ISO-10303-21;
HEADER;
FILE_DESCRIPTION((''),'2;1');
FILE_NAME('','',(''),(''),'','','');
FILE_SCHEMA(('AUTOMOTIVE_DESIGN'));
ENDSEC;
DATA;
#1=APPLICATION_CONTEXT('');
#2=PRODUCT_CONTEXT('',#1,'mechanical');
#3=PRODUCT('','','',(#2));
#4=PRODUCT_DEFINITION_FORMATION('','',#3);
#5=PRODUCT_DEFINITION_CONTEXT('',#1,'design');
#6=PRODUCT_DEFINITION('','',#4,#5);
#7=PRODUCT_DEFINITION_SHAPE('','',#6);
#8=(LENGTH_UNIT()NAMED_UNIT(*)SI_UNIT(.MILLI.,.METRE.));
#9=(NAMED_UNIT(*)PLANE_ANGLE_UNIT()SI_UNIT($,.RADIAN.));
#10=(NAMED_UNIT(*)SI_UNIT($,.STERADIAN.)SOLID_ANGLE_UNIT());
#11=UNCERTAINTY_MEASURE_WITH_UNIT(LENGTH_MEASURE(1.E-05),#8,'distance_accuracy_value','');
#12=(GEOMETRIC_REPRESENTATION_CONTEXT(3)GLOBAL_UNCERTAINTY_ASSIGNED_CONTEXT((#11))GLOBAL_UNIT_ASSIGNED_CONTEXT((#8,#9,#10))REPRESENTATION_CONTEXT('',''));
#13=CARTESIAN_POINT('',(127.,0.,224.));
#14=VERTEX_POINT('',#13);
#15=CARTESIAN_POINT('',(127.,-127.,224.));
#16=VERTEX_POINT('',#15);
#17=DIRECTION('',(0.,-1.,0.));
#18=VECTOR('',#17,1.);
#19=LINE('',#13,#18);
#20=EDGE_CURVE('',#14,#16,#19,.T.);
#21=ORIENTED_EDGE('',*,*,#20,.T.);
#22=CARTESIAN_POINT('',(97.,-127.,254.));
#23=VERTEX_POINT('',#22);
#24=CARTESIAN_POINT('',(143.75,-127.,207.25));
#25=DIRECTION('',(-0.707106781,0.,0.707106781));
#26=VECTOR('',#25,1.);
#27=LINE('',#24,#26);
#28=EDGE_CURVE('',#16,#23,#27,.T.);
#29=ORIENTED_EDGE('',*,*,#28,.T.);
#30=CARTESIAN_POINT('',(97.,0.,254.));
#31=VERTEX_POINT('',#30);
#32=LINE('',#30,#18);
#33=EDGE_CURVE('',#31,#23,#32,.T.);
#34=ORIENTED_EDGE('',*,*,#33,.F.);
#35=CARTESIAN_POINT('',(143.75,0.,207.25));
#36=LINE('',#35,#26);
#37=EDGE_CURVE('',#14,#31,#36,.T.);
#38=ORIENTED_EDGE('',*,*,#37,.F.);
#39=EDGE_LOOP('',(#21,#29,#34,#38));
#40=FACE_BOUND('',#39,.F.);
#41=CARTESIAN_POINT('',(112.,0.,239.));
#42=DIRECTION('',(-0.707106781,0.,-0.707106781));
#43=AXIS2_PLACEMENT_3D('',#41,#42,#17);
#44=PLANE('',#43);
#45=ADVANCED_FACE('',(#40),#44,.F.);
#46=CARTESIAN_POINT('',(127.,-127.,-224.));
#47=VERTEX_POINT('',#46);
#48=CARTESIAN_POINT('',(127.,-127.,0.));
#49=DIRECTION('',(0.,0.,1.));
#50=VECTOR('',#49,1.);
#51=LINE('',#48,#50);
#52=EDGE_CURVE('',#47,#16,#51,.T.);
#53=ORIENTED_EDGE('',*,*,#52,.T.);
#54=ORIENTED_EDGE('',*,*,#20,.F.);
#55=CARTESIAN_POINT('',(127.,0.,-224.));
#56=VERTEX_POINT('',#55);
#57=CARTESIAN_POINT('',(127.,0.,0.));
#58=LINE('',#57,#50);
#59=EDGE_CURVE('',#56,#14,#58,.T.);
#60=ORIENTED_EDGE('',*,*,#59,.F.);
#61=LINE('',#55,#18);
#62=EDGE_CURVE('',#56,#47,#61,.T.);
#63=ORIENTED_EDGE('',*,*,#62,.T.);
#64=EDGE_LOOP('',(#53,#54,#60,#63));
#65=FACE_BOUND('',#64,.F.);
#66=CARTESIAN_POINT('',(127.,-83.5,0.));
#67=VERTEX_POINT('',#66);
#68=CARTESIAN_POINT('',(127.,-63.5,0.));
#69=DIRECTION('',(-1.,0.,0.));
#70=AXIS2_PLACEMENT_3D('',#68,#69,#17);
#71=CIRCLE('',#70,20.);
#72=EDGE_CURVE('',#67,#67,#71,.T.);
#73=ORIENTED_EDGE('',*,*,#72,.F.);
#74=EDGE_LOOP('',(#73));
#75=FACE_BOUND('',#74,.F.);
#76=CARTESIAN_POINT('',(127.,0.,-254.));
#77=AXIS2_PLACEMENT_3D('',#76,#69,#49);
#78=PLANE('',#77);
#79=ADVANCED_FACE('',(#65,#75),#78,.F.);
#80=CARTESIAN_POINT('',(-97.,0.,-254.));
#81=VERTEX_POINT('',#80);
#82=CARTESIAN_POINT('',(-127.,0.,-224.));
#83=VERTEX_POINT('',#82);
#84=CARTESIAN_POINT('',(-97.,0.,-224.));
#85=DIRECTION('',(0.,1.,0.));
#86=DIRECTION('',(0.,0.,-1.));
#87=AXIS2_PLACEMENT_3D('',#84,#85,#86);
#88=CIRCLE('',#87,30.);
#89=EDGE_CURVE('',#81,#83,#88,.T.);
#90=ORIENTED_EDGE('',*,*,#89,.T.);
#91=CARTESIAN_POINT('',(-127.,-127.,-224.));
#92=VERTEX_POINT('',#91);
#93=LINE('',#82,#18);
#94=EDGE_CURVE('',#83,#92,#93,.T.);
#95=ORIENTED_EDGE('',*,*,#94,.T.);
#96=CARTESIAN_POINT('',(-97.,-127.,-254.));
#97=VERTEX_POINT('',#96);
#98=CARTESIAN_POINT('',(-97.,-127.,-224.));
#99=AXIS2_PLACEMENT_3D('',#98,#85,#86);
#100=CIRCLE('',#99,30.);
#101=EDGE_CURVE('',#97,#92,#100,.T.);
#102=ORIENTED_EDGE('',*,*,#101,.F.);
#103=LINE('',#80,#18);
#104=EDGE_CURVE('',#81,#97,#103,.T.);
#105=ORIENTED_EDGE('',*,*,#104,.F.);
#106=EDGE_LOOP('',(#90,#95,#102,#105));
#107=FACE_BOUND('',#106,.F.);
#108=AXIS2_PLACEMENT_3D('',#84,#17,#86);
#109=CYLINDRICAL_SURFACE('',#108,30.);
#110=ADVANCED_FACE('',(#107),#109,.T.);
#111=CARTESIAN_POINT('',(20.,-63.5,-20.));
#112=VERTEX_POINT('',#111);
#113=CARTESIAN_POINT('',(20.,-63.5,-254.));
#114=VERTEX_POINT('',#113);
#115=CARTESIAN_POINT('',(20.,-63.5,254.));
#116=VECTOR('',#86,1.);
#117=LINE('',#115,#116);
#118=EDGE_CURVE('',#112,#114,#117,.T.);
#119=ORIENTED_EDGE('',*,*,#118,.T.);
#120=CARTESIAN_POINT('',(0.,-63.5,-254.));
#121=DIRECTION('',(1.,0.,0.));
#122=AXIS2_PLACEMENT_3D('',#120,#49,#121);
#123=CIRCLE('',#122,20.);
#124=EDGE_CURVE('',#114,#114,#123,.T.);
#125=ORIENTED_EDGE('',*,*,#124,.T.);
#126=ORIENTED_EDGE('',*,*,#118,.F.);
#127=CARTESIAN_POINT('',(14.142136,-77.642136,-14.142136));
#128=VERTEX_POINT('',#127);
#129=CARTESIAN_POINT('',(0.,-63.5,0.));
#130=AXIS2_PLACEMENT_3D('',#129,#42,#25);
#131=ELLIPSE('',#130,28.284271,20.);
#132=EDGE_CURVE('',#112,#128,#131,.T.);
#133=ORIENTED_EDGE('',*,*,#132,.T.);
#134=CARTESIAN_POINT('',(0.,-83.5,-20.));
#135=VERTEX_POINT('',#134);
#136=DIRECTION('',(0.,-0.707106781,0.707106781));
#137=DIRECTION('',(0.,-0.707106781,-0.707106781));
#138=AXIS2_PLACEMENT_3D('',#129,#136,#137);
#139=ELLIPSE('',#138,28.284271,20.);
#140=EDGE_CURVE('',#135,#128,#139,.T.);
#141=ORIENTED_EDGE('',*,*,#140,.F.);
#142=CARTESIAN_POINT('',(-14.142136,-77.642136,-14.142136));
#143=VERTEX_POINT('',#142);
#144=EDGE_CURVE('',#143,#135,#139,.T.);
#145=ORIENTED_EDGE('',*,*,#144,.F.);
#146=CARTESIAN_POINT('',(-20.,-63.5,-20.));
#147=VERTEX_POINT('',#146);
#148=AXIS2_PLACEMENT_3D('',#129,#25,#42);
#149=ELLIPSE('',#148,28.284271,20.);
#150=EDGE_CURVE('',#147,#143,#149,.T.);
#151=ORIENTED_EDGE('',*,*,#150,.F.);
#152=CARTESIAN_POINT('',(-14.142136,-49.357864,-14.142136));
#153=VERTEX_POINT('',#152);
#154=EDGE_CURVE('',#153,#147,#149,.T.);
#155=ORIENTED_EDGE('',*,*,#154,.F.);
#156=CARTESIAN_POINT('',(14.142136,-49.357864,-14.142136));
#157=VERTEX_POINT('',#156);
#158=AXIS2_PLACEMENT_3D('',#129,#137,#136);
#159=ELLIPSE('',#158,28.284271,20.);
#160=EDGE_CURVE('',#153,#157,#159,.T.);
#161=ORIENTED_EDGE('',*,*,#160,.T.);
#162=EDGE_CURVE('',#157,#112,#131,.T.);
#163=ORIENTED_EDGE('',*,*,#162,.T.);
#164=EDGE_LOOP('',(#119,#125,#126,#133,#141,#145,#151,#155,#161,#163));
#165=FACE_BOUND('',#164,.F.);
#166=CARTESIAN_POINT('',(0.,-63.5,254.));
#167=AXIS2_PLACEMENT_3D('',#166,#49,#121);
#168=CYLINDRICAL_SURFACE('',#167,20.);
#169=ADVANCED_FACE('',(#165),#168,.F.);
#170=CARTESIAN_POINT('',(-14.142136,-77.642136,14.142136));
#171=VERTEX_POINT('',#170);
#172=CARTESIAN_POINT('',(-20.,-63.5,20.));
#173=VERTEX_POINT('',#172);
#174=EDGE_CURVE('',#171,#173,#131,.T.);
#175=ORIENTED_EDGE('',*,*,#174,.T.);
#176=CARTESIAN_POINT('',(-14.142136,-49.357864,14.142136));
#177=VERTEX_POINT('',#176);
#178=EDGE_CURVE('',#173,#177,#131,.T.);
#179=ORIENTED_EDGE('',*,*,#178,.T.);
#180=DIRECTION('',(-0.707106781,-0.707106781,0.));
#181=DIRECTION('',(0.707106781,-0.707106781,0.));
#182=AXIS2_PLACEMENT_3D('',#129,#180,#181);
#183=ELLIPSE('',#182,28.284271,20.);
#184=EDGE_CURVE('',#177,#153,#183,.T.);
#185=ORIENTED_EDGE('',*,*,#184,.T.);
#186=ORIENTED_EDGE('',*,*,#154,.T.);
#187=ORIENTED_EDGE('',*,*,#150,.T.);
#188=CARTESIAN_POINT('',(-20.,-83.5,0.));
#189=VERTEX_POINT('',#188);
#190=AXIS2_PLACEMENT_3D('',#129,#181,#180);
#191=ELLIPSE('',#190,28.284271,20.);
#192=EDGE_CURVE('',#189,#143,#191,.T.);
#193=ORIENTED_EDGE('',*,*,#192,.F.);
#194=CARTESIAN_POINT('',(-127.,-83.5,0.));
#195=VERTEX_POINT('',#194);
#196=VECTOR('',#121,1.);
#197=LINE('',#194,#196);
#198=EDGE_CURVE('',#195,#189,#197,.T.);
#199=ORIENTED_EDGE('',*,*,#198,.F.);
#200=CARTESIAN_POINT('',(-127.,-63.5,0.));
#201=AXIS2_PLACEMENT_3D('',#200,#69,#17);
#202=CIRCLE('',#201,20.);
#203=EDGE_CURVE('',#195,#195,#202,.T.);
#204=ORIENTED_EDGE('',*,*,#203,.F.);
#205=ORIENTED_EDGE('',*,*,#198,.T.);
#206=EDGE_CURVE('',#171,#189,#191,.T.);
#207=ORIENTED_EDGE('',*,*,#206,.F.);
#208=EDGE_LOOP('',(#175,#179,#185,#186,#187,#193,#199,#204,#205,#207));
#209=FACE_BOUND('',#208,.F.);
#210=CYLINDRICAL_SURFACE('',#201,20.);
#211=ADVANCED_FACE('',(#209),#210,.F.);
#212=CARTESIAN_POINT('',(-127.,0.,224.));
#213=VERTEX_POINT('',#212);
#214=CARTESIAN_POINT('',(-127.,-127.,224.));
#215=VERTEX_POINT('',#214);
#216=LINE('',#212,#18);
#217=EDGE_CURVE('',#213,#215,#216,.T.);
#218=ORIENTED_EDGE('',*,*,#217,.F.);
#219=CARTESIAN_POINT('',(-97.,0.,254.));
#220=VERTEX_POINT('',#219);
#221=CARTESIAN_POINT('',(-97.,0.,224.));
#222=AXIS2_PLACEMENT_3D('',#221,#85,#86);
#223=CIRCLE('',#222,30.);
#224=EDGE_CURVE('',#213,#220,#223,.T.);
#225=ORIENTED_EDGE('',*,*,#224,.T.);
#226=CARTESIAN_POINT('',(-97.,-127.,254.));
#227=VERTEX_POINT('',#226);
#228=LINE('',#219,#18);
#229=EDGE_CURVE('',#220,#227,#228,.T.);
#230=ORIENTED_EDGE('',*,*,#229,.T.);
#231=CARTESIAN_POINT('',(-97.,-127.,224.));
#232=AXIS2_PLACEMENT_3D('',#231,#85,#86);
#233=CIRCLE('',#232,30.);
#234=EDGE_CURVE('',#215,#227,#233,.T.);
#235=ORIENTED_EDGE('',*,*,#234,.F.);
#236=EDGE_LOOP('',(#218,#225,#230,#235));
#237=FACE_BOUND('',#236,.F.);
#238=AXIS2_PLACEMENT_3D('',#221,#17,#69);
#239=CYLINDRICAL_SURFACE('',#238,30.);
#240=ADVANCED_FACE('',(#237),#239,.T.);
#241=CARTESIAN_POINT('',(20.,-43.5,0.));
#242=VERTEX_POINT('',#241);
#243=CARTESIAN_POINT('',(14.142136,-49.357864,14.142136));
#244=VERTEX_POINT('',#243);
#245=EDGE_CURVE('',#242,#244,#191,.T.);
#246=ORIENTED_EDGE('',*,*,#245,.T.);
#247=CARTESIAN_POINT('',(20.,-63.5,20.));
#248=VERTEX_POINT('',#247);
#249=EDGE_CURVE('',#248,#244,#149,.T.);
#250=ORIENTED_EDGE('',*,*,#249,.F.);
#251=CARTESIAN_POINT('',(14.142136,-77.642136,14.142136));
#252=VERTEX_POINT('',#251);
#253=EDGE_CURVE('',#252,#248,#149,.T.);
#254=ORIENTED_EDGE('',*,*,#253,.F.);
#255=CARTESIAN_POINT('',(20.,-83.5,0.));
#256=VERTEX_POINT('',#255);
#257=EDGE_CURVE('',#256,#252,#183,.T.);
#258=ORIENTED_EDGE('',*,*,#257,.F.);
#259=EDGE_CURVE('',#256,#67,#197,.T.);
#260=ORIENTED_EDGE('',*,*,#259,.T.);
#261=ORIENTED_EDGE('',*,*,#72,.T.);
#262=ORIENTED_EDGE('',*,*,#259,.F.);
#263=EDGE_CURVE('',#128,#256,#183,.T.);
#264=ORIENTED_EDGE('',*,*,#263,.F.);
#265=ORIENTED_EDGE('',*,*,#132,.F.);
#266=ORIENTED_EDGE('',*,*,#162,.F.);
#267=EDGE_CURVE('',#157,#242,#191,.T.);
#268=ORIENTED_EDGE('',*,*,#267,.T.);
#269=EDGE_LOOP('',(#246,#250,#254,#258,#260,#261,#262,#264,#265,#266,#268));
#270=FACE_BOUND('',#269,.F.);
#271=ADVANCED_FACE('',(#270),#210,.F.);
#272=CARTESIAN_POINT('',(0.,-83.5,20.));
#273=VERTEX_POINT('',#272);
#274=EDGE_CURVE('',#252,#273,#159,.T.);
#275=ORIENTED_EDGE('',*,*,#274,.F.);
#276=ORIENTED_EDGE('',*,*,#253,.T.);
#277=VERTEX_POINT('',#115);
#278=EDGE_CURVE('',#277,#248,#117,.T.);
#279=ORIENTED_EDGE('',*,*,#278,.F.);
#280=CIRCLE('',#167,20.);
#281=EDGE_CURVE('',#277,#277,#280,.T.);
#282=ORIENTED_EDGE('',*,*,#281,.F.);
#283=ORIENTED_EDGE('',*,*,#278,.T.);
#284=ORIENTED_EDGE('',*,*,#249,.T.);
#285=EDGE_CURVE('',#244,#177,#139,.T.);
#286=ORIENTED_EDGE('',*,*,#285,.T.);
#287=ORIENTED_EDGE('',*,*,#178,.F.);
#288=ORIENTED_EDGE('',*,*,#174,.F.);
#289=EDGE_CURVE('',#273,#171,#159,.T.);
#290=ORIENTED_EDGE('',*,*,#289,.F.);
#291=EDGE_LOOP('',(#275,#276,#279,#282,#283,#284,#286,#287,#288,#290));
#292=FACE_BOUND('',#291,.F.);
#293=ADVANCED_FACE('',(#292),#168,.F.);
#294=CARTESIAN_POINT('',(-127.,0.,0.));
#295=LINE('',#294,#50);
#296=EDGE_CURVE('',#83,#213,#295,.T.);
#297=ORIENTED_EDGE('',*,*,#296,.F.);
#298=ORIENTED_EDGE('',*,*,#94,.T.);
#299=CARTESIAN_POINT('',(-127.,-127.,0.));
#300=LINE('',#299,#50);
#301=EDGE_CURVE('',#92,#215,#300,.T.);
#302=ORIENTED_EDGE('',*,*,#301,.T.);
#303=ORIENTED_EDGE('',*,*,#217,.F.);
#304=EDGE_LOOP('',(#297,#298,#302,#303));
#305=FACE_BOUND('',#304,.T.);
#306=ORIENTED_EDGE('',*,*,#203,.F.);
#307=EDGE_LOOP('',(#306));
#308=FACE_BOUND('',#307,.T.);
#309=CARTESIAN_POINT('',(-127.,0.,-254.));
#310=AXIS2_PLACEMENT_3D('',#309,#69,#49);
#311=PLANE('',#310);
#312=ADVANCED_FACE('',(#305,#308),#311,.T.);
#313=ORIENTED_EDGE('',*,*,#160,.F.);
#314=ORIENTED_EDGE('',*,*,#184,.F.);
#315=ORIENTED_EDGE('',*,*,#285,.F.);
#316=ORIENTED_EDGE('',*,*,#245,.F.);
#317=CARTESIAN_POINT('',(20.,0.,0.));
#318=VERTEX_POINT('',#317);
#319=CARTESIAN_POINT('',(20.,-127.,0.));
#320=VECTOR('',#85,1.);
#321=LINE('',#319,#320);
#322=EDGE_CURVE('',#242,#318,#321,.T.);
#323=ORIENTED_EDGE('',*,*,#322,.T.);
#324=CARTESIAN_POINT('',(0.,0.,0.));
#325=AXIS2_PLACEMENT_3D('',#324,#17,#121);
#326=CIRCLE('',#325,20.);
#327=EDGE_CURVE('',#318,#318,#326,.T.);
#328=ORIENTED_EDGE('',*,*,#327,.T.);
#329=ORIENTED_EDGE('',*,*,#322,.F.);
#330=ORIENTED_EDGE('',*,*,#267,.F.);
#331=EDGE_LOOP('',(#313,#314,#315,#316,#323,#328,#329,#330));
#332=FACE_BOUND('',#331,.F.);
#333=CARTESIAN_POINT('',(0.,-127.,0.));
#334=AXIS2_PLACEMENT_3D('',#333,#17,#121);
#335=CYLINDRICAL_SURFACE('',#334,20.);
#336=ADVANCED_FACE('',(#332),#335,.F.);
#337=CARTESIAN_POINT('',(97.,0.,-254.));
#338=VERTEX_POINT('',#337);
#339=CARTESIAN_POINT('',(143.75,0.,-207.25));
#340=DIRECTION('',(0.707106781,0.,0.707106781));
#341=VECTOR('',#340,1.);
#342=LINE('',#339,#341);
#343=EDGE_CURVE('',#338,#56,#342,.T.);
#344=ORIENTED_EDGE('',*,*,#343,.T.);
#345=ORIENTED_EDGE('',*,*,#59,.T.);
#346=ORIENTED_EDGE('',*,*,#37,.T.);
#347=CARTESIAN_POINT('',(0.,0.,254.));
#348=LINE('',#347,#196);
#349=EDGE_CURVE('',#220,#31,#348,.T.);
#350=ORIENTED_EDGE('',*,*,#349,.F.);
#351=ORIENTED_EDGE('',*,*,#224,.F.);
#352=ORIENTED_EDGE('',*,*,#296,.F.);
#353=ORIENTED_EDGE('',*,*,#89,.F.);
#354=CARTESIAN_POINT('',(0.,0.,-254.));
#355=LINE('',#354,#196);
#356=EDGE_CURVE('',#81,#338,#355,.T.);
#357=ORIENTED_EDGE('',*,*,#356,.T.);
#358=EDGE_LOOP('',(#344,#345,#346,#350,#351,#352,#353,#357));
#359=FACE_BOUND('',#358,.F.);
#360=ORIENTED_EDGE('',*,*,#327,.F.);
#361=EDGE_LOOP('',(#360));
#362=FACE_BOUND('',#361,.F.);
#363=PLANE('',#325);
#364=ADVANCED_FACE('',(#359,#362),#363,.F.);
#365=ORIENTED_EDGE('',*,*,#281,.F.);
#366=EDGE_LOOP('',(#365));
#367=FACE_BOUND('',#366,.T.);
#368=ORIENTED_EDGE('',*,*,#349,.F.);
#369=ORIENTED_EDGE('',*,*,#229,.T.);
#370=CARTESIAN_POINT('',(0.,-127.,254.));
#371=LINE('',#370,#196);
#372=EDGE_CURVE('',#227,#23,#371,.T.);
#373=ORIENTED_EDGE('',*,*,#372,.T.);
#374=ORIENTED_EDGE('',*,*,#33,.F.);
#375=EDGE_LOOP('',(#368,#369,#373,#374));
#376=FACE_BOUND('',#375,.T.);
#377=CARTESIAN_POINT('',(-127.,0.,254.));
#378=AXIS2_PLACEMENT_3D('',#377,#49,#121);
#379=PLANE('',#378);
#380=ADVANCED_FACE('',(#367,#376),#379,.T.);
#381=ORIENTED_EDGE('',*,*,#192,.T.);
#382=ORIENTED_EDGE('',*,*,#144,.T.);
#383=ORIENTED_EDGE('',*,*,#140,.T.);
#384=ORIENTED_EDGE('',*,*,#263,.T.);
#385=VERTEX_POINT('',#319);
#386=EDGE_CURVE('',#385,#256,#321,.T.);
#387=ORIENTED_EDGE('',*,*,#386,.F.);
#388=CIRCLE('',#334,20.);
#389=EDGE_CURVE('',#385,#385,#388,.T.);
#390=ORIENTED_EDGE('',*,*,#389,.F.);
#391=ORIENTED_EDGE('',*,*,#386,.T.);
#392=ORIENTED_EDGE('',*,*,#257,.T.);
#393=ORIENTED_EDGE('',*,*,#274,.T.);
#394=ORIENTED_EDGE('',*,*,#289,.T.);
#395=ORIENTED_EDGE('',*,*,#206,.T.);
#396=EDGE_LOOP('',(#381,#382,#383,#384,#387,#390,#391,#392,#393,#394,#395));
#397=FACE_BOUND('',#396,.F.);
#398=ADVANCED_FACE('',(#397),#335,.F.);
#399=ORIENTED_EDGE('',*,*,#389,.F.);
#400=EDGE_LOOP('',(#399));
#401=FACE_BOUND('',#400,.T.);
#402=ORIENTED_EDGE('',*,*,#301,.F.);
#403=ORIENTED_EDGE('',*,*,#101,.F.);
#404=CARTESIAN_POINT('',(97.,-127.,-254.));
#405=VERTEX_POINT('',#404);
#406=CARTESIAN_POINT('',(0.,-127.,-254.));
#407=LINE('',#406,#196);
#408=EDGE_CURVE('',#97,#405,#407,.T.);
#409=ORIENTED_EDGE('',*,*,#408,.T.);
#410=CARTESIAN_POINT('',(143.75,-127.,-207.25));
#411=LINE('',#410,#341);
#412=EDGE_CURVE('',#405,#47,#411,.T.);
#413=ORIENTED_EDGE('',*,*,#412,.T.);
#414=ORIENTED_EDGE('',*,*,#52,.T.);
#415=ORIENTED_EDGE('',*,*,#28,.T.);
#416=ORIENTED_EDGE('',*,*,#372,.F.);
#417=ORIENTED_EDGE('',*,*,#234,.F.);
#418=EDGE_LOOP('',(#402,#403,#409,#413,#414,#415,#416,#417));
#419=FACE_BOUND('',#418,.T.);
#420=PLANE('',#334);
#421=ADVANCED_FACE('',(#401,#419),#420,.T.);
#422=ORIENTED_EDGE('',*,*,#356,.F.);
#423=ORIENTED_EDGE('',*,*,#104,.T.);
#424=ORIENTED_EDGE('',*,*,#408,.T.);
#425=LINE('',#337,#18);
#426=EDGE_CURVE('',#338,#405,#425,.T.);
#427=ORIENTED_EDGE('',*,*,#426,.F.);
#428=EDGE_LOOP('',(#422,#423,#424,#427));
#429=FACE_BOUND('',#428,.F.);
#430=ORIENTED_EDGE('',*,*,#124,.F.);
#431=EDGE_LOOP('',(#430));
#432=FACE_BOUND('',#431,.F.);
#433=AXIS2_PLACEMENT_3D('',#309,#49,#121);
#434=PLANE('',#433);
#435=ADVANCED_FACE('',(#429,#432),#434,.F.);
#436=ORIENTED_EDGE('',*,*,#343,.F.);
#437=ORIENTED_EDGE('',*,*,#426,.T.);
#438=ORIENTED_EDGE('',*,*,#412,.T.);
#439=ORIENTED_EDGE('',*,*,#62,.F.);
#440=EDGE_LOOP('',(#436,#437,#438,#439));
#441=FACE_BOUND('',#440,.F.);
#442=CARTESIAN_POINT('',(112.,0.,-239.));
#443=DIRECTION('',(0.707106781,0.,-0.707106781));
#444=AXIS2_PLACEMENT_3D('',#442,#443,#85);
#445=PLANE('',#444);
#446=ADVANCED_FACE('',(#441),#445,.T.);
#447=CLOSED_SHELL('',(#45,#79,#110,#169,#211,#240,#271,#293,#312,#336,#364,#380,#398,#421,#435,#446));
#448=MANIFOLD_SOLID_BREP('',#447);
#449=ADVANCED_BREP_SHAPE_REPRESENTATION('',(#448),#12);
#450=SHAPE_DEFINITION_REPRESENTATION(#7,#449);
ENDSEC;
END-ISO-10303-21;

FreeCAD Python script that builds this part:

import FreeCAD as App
import Part
import Sketcher
from FreeCAD import Vector
Q = App.Units.Quantity


def edges_at(feature, points):
    """Names of the edges that pass closest to the given points."""
    edges = feature.Shape.Edges
    near = lambda p: min(range(len(edges)), key=lambda i: edges[i].distToShape(Part.Vertex(*p))[0])
    return sorted({f"Edge{near(p) + 1}" for p in points})


def add_polygon(sketch, points):
    """Adds a closed chain of lines whose ends are joined by coincident constraints."""
    first, n = sketch.GeometryCount, len(points)
    for a, b in zip(points, points[1:] + points[:1]):
        sketch.addGeometry(Part.LineSegment(App.Vector(*a, 0), App.Vector(*b, 0)), False)
    for i in range(n):
        sketch.addConstraint(Sketcher.Constraint("Coincident", first + i, 2, first + (i + 1) % n, 1))

doc = App.newDocument("Part")
body = doc.addObject("PartDesign::Body", "Body")

# Sketch on XZ plane
sketch1 = body.newObject("Sketcher::SketchObject", "Sketch")
sketch1.AttachmentSupport = (doc.getObject("XZ_Plane"), [""])
sketch1.MapMode = "FlatFace"
add_polygon(sketch1, [(-127, 254), (-127, -254), (127, -254), (127, 254)])  # lines 0-3
sketch1.addConstraint([
    Sketcher.Constraint("Vertical", 0),
    Sketcher.Constraint("Horizontal", 1),
    Sketcher.Constraint("Vertical", 2),
    Sketcher.Constraint("Horizontal", 3),
    Sketcher.Constraint("Symmetric", 0, 2, 2, 2, -1, 1),
    Sketcher.Constraint("DistanceX", 1, 1, 1, 2, Q("10 in")),
    Sketcher.Constraint("DistanceY", 0, 2, 0, 1, Q("20 in")),
])
pad1 = body.newObject("PartDesign::Pad", "Pad")
pad1.Profile = sketch1
pad1.Length = Q("5 in")
doc.recompute()

chamfer = body.newObject("PartDesign::Chamfer", "Chamfer")
chamfer.Base = (pad1, edges_at(pad1, [(127, -63.5, 254), (127, -63.5, -254)]))
chamfer.Size = 30
doc.recompute()

fillet = body.newObject("PartDesign::Fillet", "Fillet")
fillet.Base = (chamfer, edges_at(chamfer, [(-127, -63.5, 254), (-127, -63.5, -254)]))
fillet.Radius = 30

# Sketch on XZ plane
sketch2 = body.newObject("Sketcher::SketchObject", "Sketch001")
sketch2.AttachmentSupport = (doc.getObject("XZ_Plane"), [""])
sketch2.MapMode = "FlatFace"
sketch2.AttachmentOffset = App.Placement(Vector(0, 0, 5 * 25.4), App.Rotation())
sketch2.addGeometry(Part.Circle(Vector(0, 0, 0), Vector(0, 0, 1), 20), False)
sketch2.addConstraint([
    Sketcher.Constraint("Coincident", 0, 3, -1, 1),
    Sketcher.Constraint("Diameter", 0, 40.0),
])
pocket1 = body.newObject("PartDesign::Pocket", "Pocket")
pocket1.Profile = sketch2
pocket1.Type = "ThroughAll"

# Sketch on YZ plane
sketch3 = body.newObject("Sketcher::SketchObject", "Sketch002")
sketch3.AttachmentSupport = (doc.getObject("YZ_Plane"), [""])
sketch3.MapMode = "FlatFace"
sketch3.AttachmentOffset = App.Placement(Vector(0, 0, -5 * 25.4), App.Rotation())
sketch3.addGeometry(Part.Circle(Vector(-64, 0, 0), Vector(0, 0, 1), 20), False)
sketch3.addConstraint([
    Sketcher.Constraint("PointOnObject", 0, 3, -1),
    Sketcher.Constraint("DistanceX", 0, 3, -1, 1, Q("2.5 in")),
    Sketcher.Constraint("Diameter", 0, 40.0),
])
pocket2 = body.newObject("PartDesign::Pocket", "Pocket001")
pocket2.Profile = sketch3
pocket2.Type = "ThroughAll"
pocket2.Reversed = True

# Sketch on XY plane
sketch4 = body.newObject("Sketcher::SketchObject", "Sketch003")
sketch4.AttachmentSupport = (doc.getObject("XY_Plane"), [""])
sketch4.MapMode = "FlatFace"
sketch4.AttachmentOffset = App.Placement(Vector(0, 0, 10 * 25.4), App.Rotation())
sketch4.addGeometry(Part.Circle(Vector(0, -64, 0), Vector(0, 0, 1), 20), False)
sketch4.addConstraint([
    Sketcher.Constraint("PointOnObject", 0, 3, -2),
    Sketcher.Constraint("DistanceY", 0, 3, -1, 1, Q("2.5 in")),
    Sketcher.Constraint("Diameter", 0, 40.0),
])
pocket3 = body.newObject("PartDesign::Pocket", "Pocket002")
pocket3.Profile = sketch4
pocket3.Type = "ThroughAll"

doc.recompute()
